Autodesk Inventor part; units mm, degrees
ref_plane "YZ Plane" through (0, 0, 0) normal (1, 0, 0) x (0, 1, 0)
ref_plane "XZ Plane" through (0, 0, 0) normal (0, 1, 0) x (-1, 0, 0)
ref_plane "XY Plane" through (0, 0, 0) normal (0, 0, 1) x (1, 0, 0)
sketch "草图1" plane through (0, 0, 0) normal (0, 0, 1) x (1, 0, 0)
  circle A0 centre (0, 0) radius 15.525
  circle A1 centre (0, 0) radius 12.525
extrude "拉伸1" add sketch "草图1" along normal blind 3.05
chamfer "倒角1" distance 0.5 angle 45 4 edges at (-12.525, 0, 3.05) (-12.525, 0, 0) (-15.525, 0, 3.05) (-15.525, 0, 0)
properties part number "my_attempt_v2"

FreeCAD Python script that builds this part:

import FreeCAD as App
import Part
import Sketcher


def edges_at(feature, points):
    """Names of the edges that pass closest to the given points."""
    edges = feature.Shape.Edges
    near = lambda p: min(range(len(edges)), key=lambda i: edges[i].distToShape(Part.Vertex(*p))[0])
    return sorted({f"Edge{near(p) + 1}" for p in points})

doc = App.newDocument("Part")
body = doc.addObject("PartDesign::Body", "Body")

sketch1 = body.newObject("Sketcher::SketchObject", "Sketch")
sketch1.AttachmentSupport = (doc.getObject("XY_Plane"), [""])
sketch1.MapMode = "FlatFace"
sketch1.addGeometry([
    Part.Circle(App.Vector(0, 0, 0), App.Vector(0, 0, 1), 16),
    Part.Circle(App.Vector(0, 0, 0), App.Vector(0, 0, 1), 13),
], False)
sketch1.addConstraint([
    Sketcher.Constraint("Coincident", 0, 3, -1, 1),
    Sketcher.Constraint("Coincident", 1, 3, -1, 1),
    Sketcher.Constraint("Diameter", 0, 31.05),
    Sketcher.Constraint("Diameter", 1, 25.05),
])
pad1 = body.newObject("PartDesign::Pad", "Pad")
pad1.Profile = sketch1
pad1.Length = 3.05
doc.recompute()

chamfer = body.newObject("PartDesign::Chamfer", "Chamfer")
chamfer.Base = (pad1, edges_at(pad1, [
    (-12.525, 0, 3.05),
    (-12.525, 0, 0),
    (-15.525, 0, 3.05),
    (-15.525, 0, 0),
]))
chamfer.Size = 0.5

doc.recompute()
